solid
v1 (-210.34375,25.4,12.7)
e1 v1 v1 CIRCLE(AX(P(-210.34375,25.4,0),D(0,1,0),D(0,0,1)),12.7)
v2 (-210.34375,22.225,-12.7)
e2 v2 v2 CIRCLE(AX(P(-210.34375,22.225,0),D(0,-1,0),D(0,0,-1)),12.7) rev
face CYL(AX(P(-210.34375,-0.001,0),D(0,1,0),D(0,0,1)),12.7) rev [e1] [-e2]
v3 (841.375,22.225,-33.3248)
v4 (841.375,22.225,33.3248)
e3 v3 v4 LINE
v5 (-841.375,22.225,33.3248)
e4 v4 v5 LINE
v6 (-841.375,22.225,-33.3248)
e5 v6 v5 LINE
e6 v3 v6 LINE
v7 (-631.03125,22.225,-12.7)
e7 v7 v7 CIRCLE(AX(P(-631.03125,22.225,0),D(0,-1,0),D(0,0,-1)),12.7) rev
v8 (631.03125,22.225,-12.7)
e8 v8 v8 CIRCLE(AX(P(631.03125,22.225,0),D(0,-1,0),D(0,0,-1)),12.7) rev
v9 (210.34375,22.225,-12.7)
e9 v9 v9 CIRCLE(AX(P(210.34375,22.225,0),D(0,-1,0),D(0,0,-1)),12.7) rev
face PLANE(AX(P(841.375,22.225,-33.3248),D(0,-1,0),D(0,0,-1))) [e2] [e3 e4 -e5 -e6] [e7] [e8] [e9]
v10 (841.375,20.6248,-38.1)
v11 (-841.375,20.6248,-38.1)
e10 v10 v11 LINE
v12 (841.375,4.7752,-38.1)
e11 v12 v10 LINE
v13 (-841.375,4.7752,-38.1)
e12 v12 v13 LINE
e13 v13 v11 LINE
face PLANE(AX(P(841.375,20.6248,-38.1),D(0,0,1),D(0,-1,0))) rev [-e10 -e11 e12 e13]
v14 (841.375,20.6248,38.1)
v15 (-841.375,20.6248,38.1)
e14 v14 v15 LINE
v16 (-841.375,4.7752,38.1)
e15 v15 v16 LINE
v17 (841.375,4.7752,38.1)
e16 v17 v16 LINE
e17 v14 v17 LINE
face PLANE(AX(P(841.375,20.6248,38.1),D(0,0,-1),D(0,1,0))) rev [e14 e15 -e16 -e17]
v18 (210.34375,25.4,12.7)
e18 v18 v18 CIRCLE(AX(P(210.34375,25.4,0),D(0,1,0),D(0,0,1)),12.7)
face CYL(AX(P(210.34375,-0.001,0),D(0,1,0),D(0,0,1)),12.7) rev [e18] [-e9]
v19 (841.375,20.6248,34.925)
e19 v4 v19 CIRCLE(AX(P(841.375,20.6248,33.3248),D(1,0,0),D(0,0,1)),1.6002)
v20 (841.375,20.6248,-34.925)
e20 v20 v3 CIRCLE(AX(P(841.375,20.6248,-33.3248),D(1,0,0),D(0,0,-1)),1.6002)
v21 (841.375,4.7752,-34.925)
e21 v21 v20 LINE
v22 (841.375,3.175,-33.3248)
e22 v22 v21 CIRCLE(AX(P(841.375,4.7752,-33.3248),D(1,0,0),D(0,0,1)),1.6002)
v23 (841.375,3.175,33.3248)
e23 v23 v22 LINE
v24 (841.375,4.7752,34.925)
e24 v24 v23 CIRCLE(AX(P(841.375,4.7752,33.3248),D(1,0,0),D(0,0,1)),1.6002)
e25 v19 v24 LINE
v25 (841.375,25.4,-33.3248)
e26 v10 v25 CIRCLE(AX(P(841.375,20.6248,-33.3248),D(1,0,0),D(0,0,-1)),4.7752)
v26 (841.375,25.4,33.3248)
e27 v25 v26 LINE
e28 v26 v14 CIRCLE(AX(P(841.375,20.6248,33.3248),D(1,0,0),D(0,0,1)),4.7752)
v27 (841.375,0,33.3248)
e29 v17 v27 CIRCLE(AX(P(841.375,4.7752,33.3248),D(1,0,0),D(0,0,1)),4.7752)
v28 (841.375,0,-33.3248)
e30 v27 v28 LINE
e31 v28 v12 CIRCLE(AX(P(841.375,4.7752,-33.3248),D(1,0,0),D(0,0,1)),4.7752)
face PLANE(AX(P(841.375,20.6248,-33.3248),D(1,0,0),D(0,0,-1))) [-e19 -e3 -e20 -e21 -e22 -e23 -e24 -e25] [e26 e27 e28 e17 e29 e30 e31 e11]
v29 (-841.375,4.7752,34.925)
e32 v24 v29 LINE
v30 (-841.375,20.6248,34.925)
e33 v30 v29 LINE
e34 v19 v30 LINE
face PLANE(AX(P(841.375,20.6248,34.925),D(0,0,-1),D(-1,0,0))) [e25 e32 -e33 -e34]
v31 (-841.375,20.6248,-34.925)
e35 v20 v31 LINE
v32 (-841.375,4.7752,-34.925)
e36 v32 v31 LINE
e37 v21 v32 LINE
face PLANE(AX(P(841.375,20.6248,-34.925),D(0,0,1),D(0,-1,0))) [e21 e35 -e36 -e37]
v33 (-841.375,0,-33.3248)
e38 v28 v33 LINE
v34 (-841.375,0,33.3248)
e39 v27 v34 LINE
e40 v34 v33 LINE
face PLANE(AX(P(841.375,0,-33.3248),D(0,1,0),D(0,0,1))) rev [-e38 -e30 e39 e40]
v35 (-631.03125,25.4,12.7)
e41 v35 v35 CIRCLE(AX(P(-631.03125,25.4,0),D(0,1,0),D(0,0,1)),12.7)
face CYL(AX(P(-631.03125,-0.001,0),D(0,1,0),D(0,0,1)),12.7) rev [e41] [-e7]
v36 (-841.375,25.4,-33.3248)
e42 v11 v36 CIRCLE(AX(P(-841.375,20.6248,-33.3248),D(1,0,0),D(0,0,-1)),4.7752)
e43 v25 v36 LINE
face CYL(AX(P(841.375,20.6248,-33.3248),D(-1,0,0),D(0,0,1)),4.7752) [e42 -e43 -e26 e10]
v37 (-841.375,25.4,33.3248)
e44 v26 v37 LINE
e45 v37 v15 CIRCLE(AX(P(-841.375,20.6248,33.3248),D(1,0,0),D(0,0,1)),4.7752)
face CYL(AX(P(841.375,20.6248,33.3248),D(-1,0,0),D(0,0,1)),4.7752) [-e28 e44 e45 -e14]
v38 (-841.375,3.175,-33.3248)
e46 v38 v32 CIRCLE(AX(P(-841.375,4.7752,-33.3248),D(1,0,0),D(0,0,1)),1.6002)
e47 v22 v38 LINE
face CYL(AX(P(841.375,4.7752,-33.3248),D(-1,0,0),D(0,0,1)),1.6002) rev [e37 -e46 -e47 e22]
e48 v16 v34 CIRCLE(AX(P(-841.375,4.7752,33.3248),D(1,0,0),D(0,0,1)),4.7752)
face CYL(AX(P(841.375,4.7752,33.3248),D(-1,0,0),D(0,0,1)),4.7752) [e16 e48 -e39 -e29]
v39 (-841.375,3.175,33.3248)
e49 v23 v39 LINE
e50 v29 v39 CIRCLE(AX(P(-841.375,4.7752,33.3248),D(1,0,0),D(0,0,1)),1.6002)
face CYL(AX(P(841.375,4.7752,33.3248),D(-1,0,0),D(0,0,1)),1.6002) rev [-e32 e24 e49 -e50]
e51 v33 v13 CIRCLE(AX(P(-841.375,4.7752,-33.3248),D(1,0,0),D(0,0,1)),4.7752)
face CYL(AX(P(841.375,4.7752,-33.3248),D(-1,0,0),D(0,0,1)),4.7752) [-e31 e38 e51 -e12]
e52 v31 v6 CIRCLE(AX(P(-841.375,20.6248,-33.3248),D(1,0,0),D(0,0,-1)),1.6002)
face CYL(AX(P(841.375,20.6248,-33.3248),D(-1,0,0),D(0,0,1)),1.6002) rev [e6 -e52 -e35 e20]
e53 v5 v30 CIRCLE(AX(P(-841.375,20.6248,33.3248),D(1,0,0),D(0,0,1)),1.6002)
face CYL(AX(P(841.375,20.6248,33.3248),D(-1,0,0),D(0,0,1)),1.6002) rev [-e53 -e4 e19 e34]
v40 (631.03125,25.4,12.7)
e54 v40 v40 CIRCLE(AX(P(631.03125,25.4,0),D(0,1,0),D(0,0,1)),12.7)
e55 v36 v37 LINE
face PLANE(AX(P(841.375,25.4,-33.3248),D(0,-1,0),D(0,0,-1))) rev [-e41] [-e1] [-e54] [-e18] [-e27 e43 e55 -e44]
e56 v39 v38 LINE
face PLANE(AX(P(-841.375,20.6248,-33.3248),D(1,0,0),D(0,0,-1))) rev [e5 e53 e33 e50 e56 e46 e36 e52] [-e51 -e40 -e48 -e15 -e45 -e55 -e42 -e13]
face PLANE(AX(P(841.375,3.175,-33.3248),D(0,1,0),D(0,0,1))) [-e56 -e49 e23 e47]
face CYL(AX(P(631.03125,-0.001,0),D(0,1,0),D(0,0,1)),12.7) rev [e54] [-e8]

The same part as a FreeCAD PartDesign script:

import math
import FreeCAD as App
import Part
import Sketcher

V = App.Vector
Q = App.Units.Quantity

doc = App.newDocument("Part")
params = doc.addObject("Spreadsheet::Sheet", "Params")
for row, (alias, value) in enumerate([
    ("sketch1_radius", "0.188 in"),
    ("sketch1_radius2", "0.063 in"),
    ("pad1_length", "66.25 in"),
    ("sketch2_diameter", "1 in"),
    ("pocket1_length", "0.125 in"),
    ("linearpattern_pitch", "16.5625 in"),
], start=1):
    params.set(f"A{row}", alias)
    params.set(f"B{row}", "=" + value)
    params.setAlias(f"B{row}", alias)

body = doc.addObject("PartDesign::Body", "Body")

# Sketch on YZ plane
sketch1 = body.newObject("Sketcher::SketchObject", "Sketch")
sketch1.AttachmentSupport = (doc.getObject("YZ_Plane"), [""])
sketch1.MapMode = "FlatFace"
sketch1.addGeometry(Part.LineSegment(V(25.4, -33.3, 0), V(25.4, 33.3, 0)), False)
sketch1.addGeometry(Part.ArcOfCircle(Part.Circle(V(20.6, 33.3, 0), V(0, 0, 1), 4.8), math.radians(0), math.radians(90)), False)
sketch1.addGeometry(Part.LineSegment(V(20.6, 38.1, 0), V(4.8, 38.1, 0)), False)
sketch1.addGeometry(Part.ArcOfCircle(Part.Circle(V(4.8, 33.3, 0), V(0, 0, 1), 4.8), math.radians(90), math.radians(180)), False)
sketch1.addGeometry(Part.LineSegment(V(0, 33.3, 0), V(0, -33.3, 0)), False)
sketch1.addGeometry(Part.ArcOfCircle(Part.Circle(V(4.8, -33.3, 0), V(0, 0, 1), 4.8), math.radians(180), math.radians(270)), False)
sketch1.addGeometry(Part.LineSegment(V(4.8, -38.1, 0), V(20.6, -38.1, 0)), False)
sketch1.addGeometry(Part.ArcOfCircle(Part.Circle(V(20.6, -33.3, 0), V(0, 0, 1), 4.8), math.radians(-90), math.radians(0)), False)
sketch1.addGeometry(Part.LineSegment(V(22.2, 33.3, 0), V(22.2, -33.3, 0)), False)
sketch1.addGeometry(Part.ArcOfCircle(Part.Circle(V(20.6, -33.3, 0), V(0, 0, 1), 1.6), math.radians(-90), math.radians(0)), False)
sketch1.addGeometry(Part.LineSegment(V(20.6, -34.9, 0), V(4.8, -34.9, 0)), False)
sketch1.addGeometry(Part.ArcOfCircle(Part.Circle(V(4.8, -33.3, 0), V(0, 0, 1), 1.6), math.radians(-180), math.radians(-90)), False)
sketch1.addGeometry(Part.LineSegment(V(3.2, -33.3, 0), V(3.2, 33.3, 0)), False)
sketch1.addGeometry(Part.ArcOfCircle(Part.Circle(V(4.8, 33.3, 0), V(0, 0, 1), 1.6), math.radians(90), math.radians(180)), False)
sketch1.addGeometry(Part.LineSegment(V(4.8, 34.9, 0), V(20.6, 34.9, 0)), False)
sketch1.addGeometry(Part.ArcOfCircle(Part.Circle(V(20.6, 33.3, 0), V(0, 0, 1), 1.6), math.radians(0), math.radians(90)), False)
sketch1.addConstraint(Sketcher.Constraint("Tangent", 0, 2, 1, 1))
sketch1.addConstraint(Sketcher.Constraint("Tangent", 1, 2, 2, 1))
sketch1.addConstraint(Sketcher.Constraint("Tangent", 2, 2, 3, 1))
sketch1.addConstraint(Sketcher.Constraint("Tangent", 3, 2, 4, 1))
sketch1.addConstraint(Sketcher.Constraint("Tangent", 4, 2, 5, 1))
sketch1.addConstraint(Sketcher.Constraint("Tangent", 5, 2, 6, 1))
sketch1.addConstraint(Sketcher.Constraint("Tangent", 6, 2, 7, 1))
sketch1.addConstraint(Sketcher.Constraint("Tangent", 7, 2, 0, 1))
sketch1.addConstraint(Sketcher.Constraint("Tangent", 8, 2, 9, 2))
sketch1.addConstraint(Sketcher.Constraint("Tangent", 9, 1, 10, 1))
sketch1.addConstraint(Sketcher.Constraint("Tangent", 10, 2, 11, 2))
sketch1.addConstraint(Sketcher.Constraint("Tangent", 11, 1, 12, 1))
sketch1.addConstraint(Sketcher.Constraint("Tangent", 12, 2, 13, 2))
sketch1.addConstraint(Sketcher.Constraint("Tangent", 13, 1, 14, 1))
sketch1.addConstraint(Sketcher.Constraint("Tangent", 14, 2, 15, 2))
sketch1.addConstraint(Sketcher.Constraint("Tangent", 15, 1, 8, 1))
sketch1.addConstraint(Sketcher.Constraint("Vertical", 0))
sketch1.addConstraint(Sketcher.Constraint("Horizontal", 2))
sketch1.addConstraint(Sketcher.Constraint("Vertical", 4))
sketch1.addConstraint(Sketcher.Constraint("Horizontal", 6))
sketch1.addConstraint(Sketcher.Constraint("Vertical", 8))
sketch1.addConstraint(Sketcher.Constraint("Horizontal", 10))
sketch1.addConstraint(Sketcher.Constraint("Vertical", 12))
sketch1.addConstraint(Sketcher.Constraint("Horizontal", 14))
sketch1.addConstraint(Sketcher.Constraint("Coincident", 9, 3, 7, 3))
sketch1.addConstraint(Sketcher.Constraint("Coincident", 11, 3, 5, 3))
sketch1.addConstraint(Sketcher.Constraint("Coincident", 13, 3, 3, 3))
sketch1.addConstraint(Sketcher.Constraint("Equal", 1, 3))
sketch1.addConstraint(Sketcher.Constraint("Equal", 3, 5))
sketch1.addConstraint(Sketcher.Constraint("Equal", 5, 7))
sketch1.addConstraint(Sketcher.Constraint("Equal", 13, 15))
sketch1.addConstraint(Sketcher.Constraint("Symmetric", 3, 2, 4, 2, -1, 1))
sketch1.addConstraint(Sketcher.Constraint("DistanceX", -1, 1, 0, 2, Q("1 in")))
sketch1.addConstraint(Sketcher.Constraint("Radius", 1, Q("0.188 in")))
sketch1.addConstraint(Sketcher.Constraint("Radius", 9, Q("0.063 in")))
sketch1.addConstraint(Sketcher.Constraint("DistanceY", -1, 1, 1, 2, Q("1.5 in")))
sketch1.setExpression("Constraints[33]", "Params.sketch1_radius")
sketch1.setExpression("Constraints[34]", "Params.sketch1_radius2")
pad1 = body.newObject("PartDesign::Pad", "Pad")
pad1.Profile = sketch1
pad1.setExpression("Length", "Params.pad1_length")
pad1.Midplane = True

# Sketch on XZ plane
sketch2 = body.newObject("Sketcher::SketchObject", "Sketch001")
sketch2.AttachmentSupport = (doc.getObject("XZ_Plane"), [""])
sketch2.MapMode = "FlatFace"
sketch2.AttachmentOffset = App.Placement(V(0, 0, -1 * 25.4), App.Rotation())
sketch2.addGeometry(Part.Circle(V(-631, 0, 0), V(0, 0, 1), 13), False)
sketch2.addConstraint(Sketcher.Constraint("PointOnObject", 0, 3, -1))
sketch2.addConstraint(Sketcher.Constraint("Diameter", 0, Q("1 in")))
sketch2.addConstraint(Sketcher.Constraint("DistanceX", 0, 3, -1, 1, Q("24.84375 in")))
sketch2.setExpression("Constraints[1]", "Params.sketch2_diameter")
pocket1 = body.newObject("PartDesign::Pocket", "Pocket")
pocket1.Profile = sketch2
pocket1.setExpression("Length", "Params.pocket1_length")
pocket1.Reversed = True
doc.recompute()

linearpattern = body.newObject("PartDesign::LinearPattern", "LinearPattern")
linearpattern.Originals = [pocket1]
linearpattern.Direction = (doc.getObject("X_Axis"), [""])
linearpattern.Mode = "offset"
linearpattern.setExpression("Offset", "Params.linearpattern_pitch")
linearpattern.Occurrences = 4
body.Tip = linearpattern

doc.recompute()
